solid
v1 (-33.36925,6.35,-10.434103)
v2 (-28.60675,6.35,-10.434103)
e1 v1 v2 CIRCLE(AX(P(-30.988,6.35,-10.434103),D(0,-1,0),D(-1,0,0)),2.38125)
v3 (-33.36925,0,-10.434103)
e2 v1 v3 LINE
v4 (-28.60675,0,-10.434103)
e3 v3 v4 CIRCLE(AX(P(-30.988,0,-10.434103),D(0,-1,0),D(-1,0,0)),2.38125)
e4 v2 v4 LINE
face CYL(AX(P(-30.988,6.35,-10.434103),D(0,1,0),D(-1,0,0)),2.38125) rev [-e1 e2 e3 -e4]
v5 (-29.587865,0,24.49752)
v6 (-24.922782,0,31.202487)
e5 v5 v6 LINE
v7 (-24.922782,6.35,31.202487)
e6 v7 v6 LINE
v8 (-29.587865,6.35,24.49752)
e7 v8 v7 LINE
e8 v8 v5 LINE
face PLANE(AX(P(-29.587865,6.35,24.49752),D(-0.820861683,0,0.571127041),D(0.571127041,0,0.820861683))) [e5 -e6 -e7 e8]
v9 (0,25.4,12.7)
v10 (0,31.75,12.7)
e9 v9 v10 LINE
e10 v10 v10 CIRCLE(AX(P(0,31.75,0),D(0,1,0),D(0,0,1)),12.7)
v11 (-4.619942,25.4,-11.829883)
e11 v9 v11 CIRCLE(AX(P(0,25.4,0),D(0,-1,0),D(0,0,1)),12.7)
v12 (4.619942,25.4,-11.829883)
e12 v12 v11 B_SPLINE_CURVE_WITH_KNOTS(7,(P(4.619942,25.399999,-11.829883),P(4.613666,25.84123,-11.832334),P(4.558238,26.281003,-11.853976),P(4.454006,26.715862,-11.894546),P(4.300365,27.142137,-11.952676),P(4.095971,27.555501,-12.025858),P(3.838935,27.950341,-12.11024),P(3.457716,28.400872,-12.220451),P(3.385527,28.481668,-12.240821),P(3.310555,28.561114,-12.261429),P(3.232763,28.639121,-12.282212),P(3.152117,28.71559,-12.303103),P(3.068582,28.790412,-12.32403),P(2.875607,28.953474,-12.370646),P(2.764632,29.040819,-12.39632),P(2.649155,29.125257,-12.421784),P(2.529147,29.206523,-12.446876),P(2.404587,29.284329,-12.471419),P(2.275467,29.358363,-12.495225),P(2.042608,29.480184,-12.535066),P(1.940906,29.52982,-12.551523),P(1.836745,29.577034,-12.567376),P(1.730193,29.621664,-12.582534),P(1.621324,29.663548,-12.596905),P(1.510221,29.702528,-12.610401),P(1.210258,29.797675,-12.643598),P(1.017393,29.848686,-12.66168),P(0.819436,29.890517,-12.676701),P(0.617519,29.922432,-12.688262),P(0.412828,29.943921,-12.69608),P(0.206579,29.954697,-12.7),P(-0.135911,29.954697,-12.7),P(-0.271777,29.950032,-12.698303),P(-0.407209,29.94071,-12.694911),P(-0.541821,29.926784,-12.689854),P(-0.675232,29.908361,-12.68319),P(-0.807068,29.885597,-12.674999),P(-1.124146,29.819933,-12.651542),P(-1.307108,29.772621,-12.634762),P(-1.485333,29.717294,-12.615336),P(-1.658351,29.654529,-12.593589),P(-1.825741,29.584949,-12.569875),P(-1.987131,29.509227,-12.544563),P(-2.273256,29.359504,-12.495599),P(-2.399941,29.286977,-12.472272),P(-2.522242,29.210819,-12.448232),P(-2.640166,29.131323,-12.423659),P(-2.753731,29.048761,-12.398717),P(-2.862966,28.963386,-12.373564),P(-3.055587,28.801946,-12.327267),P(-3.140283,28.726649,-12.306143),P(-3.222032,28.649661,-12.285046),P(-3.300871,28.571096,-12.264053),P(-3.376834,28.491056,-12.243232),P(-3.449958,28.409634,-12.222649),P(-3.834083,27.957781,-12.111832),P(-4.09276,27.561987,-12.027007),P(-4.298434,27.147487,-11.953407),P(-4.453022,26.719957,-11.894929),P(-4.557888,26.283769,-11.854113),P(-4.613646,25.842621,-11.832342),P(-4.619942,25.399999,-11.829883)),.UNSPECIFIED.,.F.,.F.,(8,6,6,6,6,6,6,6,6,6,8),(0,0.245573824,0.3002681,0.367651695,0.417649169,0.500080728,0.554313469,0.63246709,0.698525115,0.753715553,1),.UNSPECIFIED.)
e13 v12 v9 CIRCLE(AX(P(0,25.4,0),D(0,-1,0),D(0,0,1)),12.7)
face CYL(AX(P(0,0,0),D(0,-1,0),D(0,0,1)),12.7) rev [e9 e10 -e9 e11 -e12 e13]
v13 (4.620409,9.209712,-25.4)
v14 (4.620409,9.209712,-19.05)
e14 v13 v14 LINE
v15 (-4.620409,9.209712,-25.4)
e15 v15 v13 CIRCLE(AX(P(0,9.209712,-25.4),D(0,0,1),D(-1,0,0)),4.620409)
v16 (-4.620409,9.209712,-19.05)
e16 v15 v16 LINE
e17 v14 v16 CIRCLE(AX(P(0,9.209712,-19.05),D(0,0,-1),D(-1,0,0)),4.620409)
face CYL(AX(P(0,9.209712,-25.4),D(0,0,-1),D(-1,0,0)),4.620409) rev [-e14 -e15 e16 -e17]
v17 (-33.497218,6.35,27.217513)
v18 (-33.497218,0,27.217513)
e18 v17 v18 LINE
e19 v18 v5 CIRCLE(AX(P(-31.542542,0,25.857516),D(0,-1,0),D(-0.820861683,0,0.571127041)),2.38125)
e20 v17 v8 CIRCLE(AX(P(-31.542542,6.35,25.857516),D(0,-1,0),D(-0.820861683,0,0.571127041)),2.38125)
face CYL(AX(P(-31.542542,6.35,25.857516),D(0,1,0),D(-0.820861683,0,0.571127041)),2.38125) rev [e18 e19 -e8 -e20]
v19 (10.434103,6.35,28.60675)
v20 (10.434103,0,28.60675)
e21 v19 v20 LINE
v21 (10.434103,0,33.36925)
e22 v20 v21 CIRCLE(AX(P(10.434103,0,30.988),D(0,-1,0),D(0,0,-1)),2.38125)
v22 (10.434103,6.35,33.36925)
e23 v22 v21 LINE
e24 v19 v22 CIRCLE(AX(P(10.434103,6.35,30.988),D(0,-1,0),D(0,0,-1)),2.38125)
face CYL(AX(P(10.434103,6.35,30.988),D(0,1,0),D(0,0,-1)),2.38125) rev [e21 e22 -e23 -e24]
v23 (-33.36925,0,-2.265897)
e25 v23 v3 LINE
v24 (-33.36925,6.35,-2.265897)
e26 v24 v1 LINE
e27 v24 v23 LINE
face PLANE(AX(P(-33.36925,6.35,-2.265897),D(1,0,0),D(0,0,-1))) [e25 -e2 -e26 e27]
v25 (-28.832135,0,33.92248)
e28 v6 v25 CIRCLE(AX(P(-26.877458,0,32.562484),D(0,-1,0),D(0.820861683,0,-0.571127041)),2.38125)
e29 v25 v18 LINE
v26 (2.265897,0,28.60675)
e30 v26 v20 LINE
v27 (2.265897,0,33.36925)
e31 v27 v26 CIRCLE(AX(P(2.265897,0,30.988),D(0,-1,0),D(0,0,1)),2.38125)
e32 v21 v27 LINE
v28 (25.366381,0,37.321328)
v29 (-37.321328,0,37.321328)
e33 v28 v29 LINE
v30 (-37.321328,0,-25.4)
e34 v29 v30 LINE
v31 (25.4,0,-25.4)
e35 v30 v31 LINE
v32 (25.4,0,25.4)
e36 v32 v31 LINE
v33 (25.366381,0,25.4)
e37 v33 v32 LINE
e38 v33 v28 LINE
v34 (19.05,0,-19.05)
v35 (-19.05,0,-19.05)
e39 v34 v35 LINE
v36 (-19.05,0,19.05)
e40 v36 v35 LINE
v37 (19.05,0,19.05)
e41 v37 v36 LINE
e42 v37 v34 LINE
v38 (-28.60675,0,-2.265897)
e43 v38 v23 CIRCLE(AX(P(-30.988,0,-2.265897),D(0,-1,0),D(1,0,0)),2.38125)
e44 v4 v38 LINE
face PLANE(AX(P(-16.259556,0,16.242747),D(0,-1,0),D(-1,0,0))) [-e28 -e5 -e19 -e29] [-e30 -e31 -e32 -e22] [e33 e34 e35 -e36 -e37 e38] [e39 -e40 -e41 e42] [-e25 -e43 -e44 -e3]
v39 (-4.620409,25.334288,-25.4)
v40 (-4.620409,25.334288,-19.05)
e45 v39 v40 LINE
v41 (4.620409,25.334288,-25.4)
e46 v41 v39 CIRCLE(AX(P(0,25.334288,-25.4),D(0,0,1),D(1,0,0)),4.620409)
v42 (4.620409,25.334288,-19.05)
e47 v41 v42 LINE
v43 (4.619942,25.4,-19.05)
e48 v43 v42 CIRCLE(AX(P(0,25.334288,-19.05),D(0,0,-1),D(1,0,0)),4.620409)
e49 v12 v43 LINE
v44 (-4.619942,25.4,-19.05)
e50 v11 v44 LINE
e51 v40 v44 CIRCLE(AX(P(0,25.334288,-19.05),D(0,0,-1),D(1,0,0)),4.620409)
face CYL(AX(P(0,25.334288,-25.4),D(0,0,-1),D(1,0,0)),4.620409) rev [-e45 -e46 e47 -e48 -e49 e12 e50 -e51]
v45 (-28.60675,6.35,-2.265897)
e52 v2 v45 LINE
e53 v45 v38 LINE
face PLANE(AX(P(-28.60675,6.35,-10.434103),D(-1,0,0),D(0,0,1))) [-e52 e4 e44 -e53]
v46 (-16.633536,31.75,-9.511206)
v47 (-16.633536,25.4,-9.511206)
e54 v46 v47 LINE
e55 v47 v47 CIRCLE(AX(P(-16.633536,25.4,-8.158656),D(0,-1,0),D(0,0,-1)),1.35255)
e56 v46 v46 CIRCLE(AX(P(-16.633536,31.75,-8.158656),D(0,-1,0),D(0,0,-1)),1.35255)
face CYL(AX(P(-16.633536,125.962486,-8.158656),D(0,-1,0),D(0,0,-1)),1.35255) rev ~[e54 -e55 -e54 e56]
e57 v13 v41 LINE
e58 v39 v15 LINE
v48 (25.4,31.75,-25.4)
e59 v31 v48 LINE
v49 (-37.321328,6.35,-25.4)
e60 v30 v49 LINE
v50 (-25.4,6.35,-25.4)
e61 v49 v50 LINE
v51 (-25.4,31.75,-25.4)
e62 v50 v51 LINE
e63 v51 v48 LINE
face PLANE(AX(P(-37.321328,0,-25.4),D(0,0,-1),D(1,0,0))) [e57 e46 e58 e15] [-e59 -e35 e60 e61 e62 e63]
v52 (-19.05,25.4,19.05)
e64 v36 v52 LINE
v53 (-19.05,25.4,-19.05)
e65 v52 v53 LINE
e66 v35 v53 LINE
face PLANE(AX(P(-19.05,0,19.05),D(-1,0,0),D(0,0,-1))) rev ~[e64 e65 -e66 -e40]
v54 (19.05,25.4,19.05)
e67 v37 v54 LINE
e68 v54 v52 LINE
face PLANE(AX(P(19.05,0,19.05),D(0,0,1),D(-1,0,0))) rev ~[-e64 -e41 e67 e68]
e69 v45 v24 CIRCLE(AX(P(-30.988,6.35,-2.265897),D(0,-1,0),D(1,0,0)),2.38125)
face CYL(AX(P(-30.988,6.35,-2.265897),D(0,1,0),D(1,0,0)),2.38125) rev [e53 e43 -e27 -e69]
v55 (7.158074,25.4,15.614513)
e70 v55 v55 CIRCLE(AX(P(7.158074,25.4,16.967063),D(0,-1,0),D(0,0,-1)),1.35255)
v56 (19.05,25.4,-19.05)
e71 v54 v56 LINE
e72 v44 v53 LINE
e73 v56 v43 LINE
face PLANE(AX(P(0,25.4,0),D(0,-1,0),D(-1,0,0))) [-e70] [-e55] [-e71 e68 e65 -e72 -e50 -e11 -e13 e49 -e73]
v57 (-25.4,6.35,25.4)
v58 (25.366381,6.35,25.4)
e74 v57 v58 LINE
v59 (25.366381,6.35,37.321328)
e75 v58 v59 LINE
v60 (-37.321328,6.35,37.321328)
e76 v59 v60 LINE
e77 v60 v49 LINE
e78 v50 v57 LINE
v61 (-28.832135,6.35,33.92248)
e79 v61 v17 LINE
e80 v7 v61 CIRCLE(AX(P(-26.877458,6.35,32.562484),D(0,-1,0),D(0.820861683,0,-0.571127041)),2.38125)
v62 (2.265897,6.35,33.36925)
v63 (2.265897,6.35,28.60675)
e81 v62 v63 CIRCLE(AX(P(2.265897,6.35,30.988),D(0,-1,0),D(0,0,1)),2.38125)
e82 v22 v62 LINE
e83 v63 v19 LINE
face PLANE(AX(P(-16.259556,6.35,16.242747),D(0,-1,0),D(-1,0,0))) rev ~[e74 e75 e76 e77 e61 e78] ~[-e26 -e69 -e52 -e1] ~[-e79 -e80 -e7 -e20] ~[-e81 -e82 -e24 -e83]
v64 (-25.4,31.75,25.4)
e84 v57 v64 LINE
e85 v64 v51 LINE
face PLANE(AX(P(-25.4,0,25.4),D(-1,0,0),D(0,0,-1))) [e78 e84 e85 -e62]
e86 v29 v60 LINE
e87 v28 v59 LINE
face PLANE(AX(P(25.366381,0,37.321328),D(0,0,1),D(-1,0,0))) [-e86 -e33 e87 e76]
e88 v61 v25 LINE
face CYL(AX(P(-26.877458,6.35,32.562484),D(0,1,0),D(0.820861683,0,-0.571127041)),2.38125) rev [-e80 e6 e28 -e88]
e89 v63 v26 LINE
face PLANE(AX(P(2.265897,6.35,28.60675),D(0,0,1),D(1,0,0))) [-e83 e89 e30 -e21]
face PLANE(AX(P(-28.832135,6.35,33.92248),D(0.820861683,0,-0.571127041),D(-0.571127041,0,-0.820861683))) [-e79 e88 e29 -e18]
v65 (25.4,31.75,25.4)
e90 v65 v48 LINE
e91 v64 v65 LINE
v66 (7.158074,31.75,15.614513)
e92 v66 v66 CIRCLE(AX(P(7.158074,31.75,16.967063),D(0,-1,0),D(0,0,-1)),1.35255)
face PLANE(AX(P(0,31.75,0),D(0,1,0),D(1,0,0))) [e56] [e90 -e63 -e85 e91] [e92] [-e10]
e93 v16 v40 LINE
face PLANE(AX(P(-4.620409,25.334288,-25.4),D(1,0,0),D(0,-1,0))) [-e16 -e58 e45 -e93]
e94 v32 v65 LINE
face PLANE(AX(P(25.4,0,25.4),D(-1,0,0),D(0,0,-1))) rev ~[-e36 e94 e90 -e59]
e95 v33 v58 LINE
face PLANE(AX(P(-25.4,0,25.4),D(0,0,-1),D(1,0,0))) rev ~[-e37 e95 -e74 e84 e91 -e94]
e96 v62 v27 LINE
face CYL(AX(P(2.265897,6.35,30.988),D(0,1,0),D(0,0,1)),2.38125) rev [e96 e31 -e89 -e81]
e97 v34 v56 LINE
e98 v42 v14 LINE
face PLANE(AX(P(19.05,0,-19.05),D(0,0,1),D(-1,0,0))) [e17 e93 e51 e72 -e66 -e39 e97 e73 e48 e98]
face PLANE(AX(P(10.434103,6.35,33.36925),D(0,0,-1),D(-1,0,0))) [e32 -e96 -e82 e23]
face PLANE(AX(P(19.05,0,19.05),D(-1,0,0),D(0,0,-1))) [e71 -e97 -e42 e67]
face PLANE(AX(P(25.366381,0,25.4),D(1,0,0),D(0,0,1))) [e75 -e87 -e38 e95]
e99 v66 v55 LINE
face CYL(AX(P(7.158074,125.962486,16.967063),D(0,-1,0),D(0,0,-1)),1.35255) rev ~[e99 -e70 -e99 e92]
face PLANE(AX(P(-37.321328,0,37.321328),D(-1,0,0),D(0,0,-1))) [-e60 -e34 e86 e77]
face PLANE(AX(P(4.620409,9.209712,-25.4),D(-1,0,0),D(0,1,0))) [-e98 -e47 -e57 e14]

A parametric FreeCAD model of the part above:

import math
import FreeCAD as App
import Part
import Sketcher

V = App.Vector
Q = App.Units.Quantity

doc = App.newDocument("Part")
body = doc.addObject("PartDesign::Body", "Body")

# Sketch on XZ plane
sketch1 = doc.addObject("Sketcher::SketchObject", "Sketch")
body.addObject(sketch1)
sketch1.AttachmentSupport = (doc.XZ_Plane, [""])
sketch1.MapMode = "FlatFace"
sketch1.addGeometry(Part.LineSegment(V(-25, -25, 0), V(-25, 25, 0)), False)
sketch1.addGeometry(Part.LineSegment(V(-25, 25, 0), V(25, 25, 0)), False)
sketch1.addGeometry(Part.LineSegment(V(25, 25, 0), V(25, -25, 0)), False)
sketch1.addGeometry(Part.LineSegment(V(25, -25, 0), V(-25, -25, 0)), False)
sketch1.addGeometry(Part.Circle(V(0, 0, 0), V(0, 0, 1), 13), False)
sketch1.addConstraint(Sketcher.Constraint("Coincident", 0, 2, 1, 1))
sketch1.addConstraint(Sketcher.Constraint("Coincident", 1, 2, 2, 1))
sketch1.addConstraint(Sketcher.Constraint("Coincident", 2, 2, 3, 1))
sketch1.addConstraint(Sketcher.Constraint("Coincident", 3, 2, 0, 1))
sketch1.addConstraint(Sketcher.Constraint("Vertical", 0))
sketch1.addConstraint(Sketcher.Constraint("Horizontal", 1))
sketch1.addConstraint(Sketcher.Constraint("Vertical", 2))
sketch1.addConstraint(Sketcher.Constraint("Horizontal", 3))
sketch1.addConstraint(Sketcher.Constraint("Coincident", 4, 3, -1, 1))
sketch1.addConstraint(Sketcher.Constraint("Symmetric", 0, 2, 2, 2, -1, 1))
sketch1.addConstraint(Sketcher.Constraint("Equal", 3, 0))
sketch1.addConstraint(Sketcher.Constraint("Diameter", 4, Q("1 in")))
sketch1.addConstraint(Sketcher.Constraint("DistanceX", 1, 1, 1, 2, Q("2 in")))
pad1 = doc.addObject("PartDesign::Pad", "Pad")
body.addObject(pad1)
pad1.Profile = sketch1
pad1.Length = Q("1.25 in")
pad1.Reversed = True

# Sketch on XZ plane
sketch2 = doc.addObject("Sketcher::SketchObject", "Sketch001")
body.addObject(sketch2)
sketch2.AttachmentSupport = (doc.XZ_Plane, [""])
sketch2.MapMode = "FlatFace"
sketch2.addGeometry(Part.LineSegment(V(-25, 25, 0), V(25, 25, 0)), False)
sketch2.addGeometry(Part.LineSegment(V(25, 25, 0), V(25, 37, 0)), False)
sketch2.addGeometry(Part.LineSegment(V(25, 37, 0), V(-37, 37, 0)), False)
sketch2.addGeometry(Part.LineSegment(V(-37, 37, 0), V(-37, -25, 0)), False)
sketch2.addGeometry(Part.LineSegment(V(-37, -25, 0), V(-25, -25, 0)), False)
sketch2.addGeometry(Part.LineSegment(V(-25, -25, 0), V(-25, 25, 0)), False)
sketch2.addConstraint(Sketcher.Constraint("Coincident", 0, 2, 1, 1))
sketch2.addConstraint(Sketcher.Constraint("Coincident", 1, 2, 2, 1))
sketch2.addConstraint(Sketcher.Constraint("Coincident", 2, 2, 3, 1))
sketch2.addConstraint(Sketcher.Constraint("Coincident", 3, 2, 4, 1))
sketch2.addConstraint(Sketcher.Constraint("Coincident", 4, 2, 5, 1))
sketch2.addConstraint(Sketcher.Constraint("Coincident", 5, 2, 0, 1))
sketch2.addConstraint(Sketcher.Constraint("Horizontal", 0))
sketch2.addConstraint(Sketcher.Constraint("Vertical", 1))
sketch2.addConstraint(Sketcher.Constraint("Horizontal", 2))
sketch2.addConstraint(Sketcher.Constraint("Vertical", 3))
sketch2.addConstraint(Sketcher.Constraint("Horizontal", 4))
sketch2.addConstraint(Sketcher.Constraint("Vertical", 5))
sketch2.addConstraint(Sketcher.Constraint("Equal", 4, 1))
sketch2.addConstraint(Sketcher.Constraint("DistanceY", 5, 1, 5, 2, Q("2 in")))
sketch2.addConstraint(Sketcher.Constraint("DistanceY", -1, 1, 0, 2, Q("1 in")))
sketch2.addConstraint(Sketcher.Constraint("DistanceX", 4, 2, -1, 1, Q("1 in")))
sketch2.addConstraint(Sketcher.Constraint("DistanceX", 0, 1, 0, 2, Q("50.766381 mm")))
sketch2.addConstraint(Sketcher.Constraint("DistanceX", 2, 2, 2, 1, Q("62.687709 mm")))
pad2 = doc.addObject("PartDesign::Pad", "Pad001")
body.addObject(pad2)
pad2.Profile = sketch2
pad2.Length = Q("0.25 in")
pad2.Reversed = True

# Sketch on XZ plane
sketch3 = doc.addObject("Sketcher::SketchObject", "Sketch002")
body.addObject(sketch3)
sketch3.AttachmentSupport = (doc.XZ_Plane, [""])
sketch3.MapMode = "FlatFace"
sketch3.AttachmentOffset = App.Placement(V(0, 0, -0.25 * 25.4), App.Rotation())
sketch3.addGeometry(Part.LineSegment(V(-28.6, -2.3, 0), V(-28.6, -10.4, 0)), False)
sketch3.addGeometry(Part.ArcOfCircle(Part.Circle(V(-31, -10.4, 0), V(0, 0, 1), 2.4), math.radians(180), math.radians(360)), False)
sketch3.addGeometry(Part.LineSegment(V(-33.4, -10.4, 0), V(-33.4, -2.3, 0)), False)
sketch3.addGeometry(Part.ArcOfCircle(Part.Circle(V(-31, -2.3, 0), V(0, 0, 1), 2.4), math.radians(0), math.radians(180)), False)
sketch3.addGeometry(Part.LineSegment(V(-24.9, 31.2, 0), V(-29.6, 24.5, 0)), False)
sketch3.addGeometry(Part.ArcOfCircle(Part.Circle(V(-31.5, 25.9, 0), V(0, 0, 1), 2.4), math.radians(145), math.radians(325)), False)
sketch3.addGeometry(Part.LineSegment(V(-33.5, 27.2, 0), V(-28.8, 33.9, 0)), False)
sketch3.addGeometry(Part.ArcOfCircle(Part.Circle(V(-26.9, 32.6, 0), V(0, 0, 1), 2.4), math.radians(-35), math.radians(145)), False)
sketch3.addConstraint(Sketcher.Constraint("Tangent", 0, 2, 1, 2))
sketch3.addConstraint(Sketcher.Constraint("Tangent", 1, 1, 2, 1))
sketch3.addConstraint(Sketcher.Constraint("Tangent", 2, 2, 3, 2))
sketch3.addConstraint(Sketcher.Constraint("Tangent", 3, 1, 0, 1))
sketch3.addConstraint(Sketcher.Constraint("Tangent", 4, 2, 5, 2))
sketch3.addConstraint(Sketcher.Constraint("Tangent", 5, 1, 6, 1))
sketch3.addConstraint(Sketcher.Constraint("Tangent", 6, 2, 7, 2))
sketch3.addConstraint(Sketcher.Constraint("Tangent", 7, 1, 4, 1))
sketch3.addConstraint(Sketcher.Constraint("Vertical", 0))
sketch3.addConstraint(Sketcher.Constraint("Vertical", 2))
sketch3.addConstraint(Sketcher.Constraint("Equal", 3, 5))
sketch3.addConstraint(Sketcher.Constraint("Equal", 5, 7))
sketch3.addConstraint(Sketcher.Constraint("Radius", 1, Q("0.09375 in")))
sketch3.addConstraint(Sketcher.Constraint("DistanceX", 1, 3, -1, 1, Q("1.22 in")))
sketch3.addConstraint(Sketcher.Constraint("DistanceY", 0, 2, 0, 1, Q("8.168206 mm")))
sketch3.addConstraint(Sketcher.Constraint("DistanceX", 5, 3, -1, 1, Q("31.542542 mm")))
sketch3.addConstraint(Sketcher.Constraint("DistanceX", 7, 3, -1, 1, Q("26.877458 mm")))
sketch3.addConstraint(Sketcher.Constraint("DistanceY", -1, 1, 4, 2, Q("24.49752 mm")))
sketch3.addConstraint(Sketcher.Constraint("DistanceX", 5, 1, -1, 1, Q("33.497218 mm")))
sketch3.addConstraint(Sketcher.Constraint("DistanceY", 1, 3, 5, 3, Q("36.291619 mm")))
pocket1 = doc.addObject("PartDesign::Pocket", "Pocket")
body.addObject(pocket1)
pocket1.Profile = sketch3
pocket1.Length = Q("0.25 in")
pocket1.Reversed = True

# Sketch on XZ plane
sketch4 = doc.addObject("Sketcher::SketchObject", "Sketch003")
body.addObject(sketch4)
sketch4.AttachmentSupport = (doc.XZ_Plane, [""])
sketch4.MapMode = "FlatFace"
sketch4.AttachmentOffset = App.Placement(V(0, 0, -0.25 * 25.4), App.Rotation())
sketch4.addGeometry(Part.LineSegment(V(2.3, 33.4, 0), V(10.4, 33.4, 0)), False)
sketch4.addGeometry(Part.ArcOfCircle(Part.Circle(V(10.4, 31, 0), V(0, 0, 1), 2.4), math.radians(-90), math.radians(90)), False)
sketch4.addGeometry(Part.LineSegment(V(10.4, 28.6, 0), V(2.3, 28.6, 0)), False)
sketch4.addGeometry(Part.ArcOfCircle(Part.Circle(V(2.3, 31, 0), V(0, 0, 1), 2.4), math.radians(90), math.radians(270)), False)
sketch4.addConstraint(Sketcher.Constraint("Tangent", 0, 2, 1, 2))
sketch4.addConstraint(Sketcher.Constraint("Tangent", 1, 1, 2, 1))
sketch4.addConstraint(Sketcher.Constraint("Tangent", 2, 2, 3, 2))
sketch4.addConstraint(Sketcher.Constraint("Tangent", 3, 1, 0, 1))
sketch4.addConstraint(Sketcher.Constraint("Horizontal", 0))
sketch4.addConstraint(Sketcher.Constraint("Horizontal", 2))
sketch4.addConstraint(Sketcher.Constraint("Radius", 1, Q("0.09375 in")))
sketch4.addConstraint(Sketcher.Constraint("DistanceY", -1, 1, 1, 3, Q("1.22 in")))
sketch4.addConstraint(Sketcher.Constraint("DistanceX", 0, 1, 0, 2, Q("8.168206 mm")))
sketch4.addConstraint(Sketcher.Constraint("DistanceX", -1, 1, 1, 3, Q("10.434103 mm")))
pocket2 = doc.addObject("PartDesign::Pocket", "Pocket001")
body.addObject(pocket2)
pocket2.Profile = sketch4
pocket2.Length = Q("0.25 in")
pocket2.Reversed = True

# Sketch on XZ plane
sketch5 = doc.addObject("Sketcher::SketchObject", "Sketch004")
body.addObject(sketch5)
sketch5.AttachmentSupport = (doc.XZ_Plane, [""])
sketch5.MapMode = "FlatFace"
sketch5.addGeometry(Part.LineSegment(V(19, -19, 0), V(19, 19, 0)), False)
sketch5.addGeometry(Part.LineSegment(V(19, 19, 0), V(-19, 19, 0)), False)
sketch5.addGeometry(Part.LineSegment(V(-19, 19, 0), V(-19, -19, 0)), False)
sketch5.addGeometry(Part.LineSegment(V(-19, -19, 0), V(19, -19, 0)), False)
sketch5.addConstraint(Sketcher.Constraint("Coincident", 0, 2, 1, 1))
sketch5.addConstraint(Sketcher.Constraint("Coincident", 1, 2, 2, 1))
sketch5.addConstraint(Sketcher.Constraint("Coincident", 2, 2, 3, 1))
sketch5.addConstraint(Sketcher.Constraint("Coincident", 3, 2, 0, 1))
sketch5.addConstraint(Sketcher.Constraint("Vertical", 0))
sketch5.addConstraint(Sketcher.Constraint("Horizontal", 1))
sketch5.addConstraint(Sketcher.Constraint("Vertical", 2))
sketch5.addConstraint(Sketcher.Constraint("Horizontal", 3))
sketch5.addConstraint(Sketcher.Constraint("Symmetric", 0, 2, 2, 2, -1, 1))
sketch5.addConstraint(Sketcher.Constraint("Equal", 3, 0))
sketch5.addConstraint(Sketcher.Constraint("DistanceX", 1, 2, 1, 1, Q("1.5 in")))
pocket3 = doc.addObject("PartDesign::Pocket", "Pocket002")
body.addObject(pocket3)
pocket3.Profile = sketch5
pocket3.Length = Q("1 in")

# Sketch on XZ plane
sketch6 = doc.addObject("Sketcher::SketchObject", "Sketch005")
body.addObject(sketch6)
sketch6.AttachmentSupport = (doc.XZ_Plane, [""])
sketch6.MapMode = "FlatFace"
sketch6.AttachmentOffset = App.Placement(V(0, 0, -1.25 * 25.4), App.Rotation())
sketch6.addGeometry(Part.Circle(V(7.2, 17, 0), V(0, 0, 1), 1.4), False)
sketch6.addGeometry(Part.Circle(V(-16.6, -8.2, 0), V(0, 0, 1), 1.4), False)
sketch6.addConstraint(Sketcher.Constraint("Equal", 0, 1))
sketch6.addConstraint(Sketcher.Constraint("Diameter", 0, Q("0.1065 in")))
sketch6.addConstraint(Sketcher.Constraint("DistanceX", 1, 3, 0, 3, Q("23.79161 mm")))
sketch6.addConstraint(Sketcher.Constraint("DistanceY", 1, 3, 0, 3, Q("25.125719 mm")))
sketch6.addConstraint(Sketcher.Constraint("DistanceX", -1, 1, 0, 3, Q("7.158074 mm")))
sketch6.addConstraint(Sketcher.Constraint("DistanceY", -1, 1, 0, 3, Q("16.967063 mm")))
doc.recompute()
hole = doc.addObject("PartDesign::Hole", "Hole")
body.addObject(hole)
hole.Profile = sketch6
hole.ThreadType = "None"
hole.Diameter = Q("0.1065 in")
hole.DepthType = "ThroughAll"
hole.Reversed = True

# Sketch on XY plane
sketch7 = doc.addObject("Sketcher::SketchObject", "Sketch006")
body.addObject(sketch7)
sketch7.AttachmentSupport = (doc.XY_Plane, [""])
sketch7.MapMode = "FlatFace"
sketch7.AttachmentOffset = App.Placement(V(0, 0, -1 * 25.4), App.Rotation())
sketch7.addGeometry(Part.LineSegment(V(-4.6, 9.2, 0), V(-4.6, 25.3, 0)), False)
sketch7.addGeometry(Part.ArcOfCircle(Part.Circle(V(0, 25.3, 0), V(0, 0, 1), 4.6), math.radians(0), math.radians(180)), False)
sketch7.addGeometry(Part.LineSegment(V(4.6, 25.3, 0), V(4.6, 9.2, 0)), False)
sketch7.addGeometry(Part.ArcOfCircle(Part.Circle(V(0, 9.2, 0), V(0, 0, 1), 4.6), math.radians(-180), math.radians(0)), False)
sketch7.addConstraint(Sketcher.Constraint("Tangent", 0, 2, 1, 2))
sketch7.addConstraint(Sketcher.Constraint("Tangent", 1, 1, 2, 1))
sketch7.addConstraint(Sketcher.Constraint("Tangent", 2, 2, 3, 2))
sketch7.addConstraint(Sketcher.Constraint("Tangent", 3, 1, 0, 1))
sketch7.addConstraint(Sketcher.Constraint("Vertical", 0))
sketch7.addConstraint(Sketcher.Constraint("Vertical", 2))
sketch7.addConstraint(Sketcher.Constraint("PointOnObject", 1, 3, -2))
sketch7.addConstraint(Sketcher.Constraint("Radius", 1, Q("4.620409 mm")))
sketch7.addConstraint(Sketcher.Constraint("DistanceY", 0, 1, 0, 2, Q("16.124575 mm")))
sketch7.addConstraint(Sketcher.Constraint("DistanceY", -1, 1, 1, 3, Q("25.334288 mm")))
pocket4 = doc.addObject("PartDesign::Pocket", "Pocket003")
body.addObject(pocket4)
pocket4.Profile = sketch7
pocket4.Length = Q("1 in")
pocket4.Reversed = True

doc.recompute()
